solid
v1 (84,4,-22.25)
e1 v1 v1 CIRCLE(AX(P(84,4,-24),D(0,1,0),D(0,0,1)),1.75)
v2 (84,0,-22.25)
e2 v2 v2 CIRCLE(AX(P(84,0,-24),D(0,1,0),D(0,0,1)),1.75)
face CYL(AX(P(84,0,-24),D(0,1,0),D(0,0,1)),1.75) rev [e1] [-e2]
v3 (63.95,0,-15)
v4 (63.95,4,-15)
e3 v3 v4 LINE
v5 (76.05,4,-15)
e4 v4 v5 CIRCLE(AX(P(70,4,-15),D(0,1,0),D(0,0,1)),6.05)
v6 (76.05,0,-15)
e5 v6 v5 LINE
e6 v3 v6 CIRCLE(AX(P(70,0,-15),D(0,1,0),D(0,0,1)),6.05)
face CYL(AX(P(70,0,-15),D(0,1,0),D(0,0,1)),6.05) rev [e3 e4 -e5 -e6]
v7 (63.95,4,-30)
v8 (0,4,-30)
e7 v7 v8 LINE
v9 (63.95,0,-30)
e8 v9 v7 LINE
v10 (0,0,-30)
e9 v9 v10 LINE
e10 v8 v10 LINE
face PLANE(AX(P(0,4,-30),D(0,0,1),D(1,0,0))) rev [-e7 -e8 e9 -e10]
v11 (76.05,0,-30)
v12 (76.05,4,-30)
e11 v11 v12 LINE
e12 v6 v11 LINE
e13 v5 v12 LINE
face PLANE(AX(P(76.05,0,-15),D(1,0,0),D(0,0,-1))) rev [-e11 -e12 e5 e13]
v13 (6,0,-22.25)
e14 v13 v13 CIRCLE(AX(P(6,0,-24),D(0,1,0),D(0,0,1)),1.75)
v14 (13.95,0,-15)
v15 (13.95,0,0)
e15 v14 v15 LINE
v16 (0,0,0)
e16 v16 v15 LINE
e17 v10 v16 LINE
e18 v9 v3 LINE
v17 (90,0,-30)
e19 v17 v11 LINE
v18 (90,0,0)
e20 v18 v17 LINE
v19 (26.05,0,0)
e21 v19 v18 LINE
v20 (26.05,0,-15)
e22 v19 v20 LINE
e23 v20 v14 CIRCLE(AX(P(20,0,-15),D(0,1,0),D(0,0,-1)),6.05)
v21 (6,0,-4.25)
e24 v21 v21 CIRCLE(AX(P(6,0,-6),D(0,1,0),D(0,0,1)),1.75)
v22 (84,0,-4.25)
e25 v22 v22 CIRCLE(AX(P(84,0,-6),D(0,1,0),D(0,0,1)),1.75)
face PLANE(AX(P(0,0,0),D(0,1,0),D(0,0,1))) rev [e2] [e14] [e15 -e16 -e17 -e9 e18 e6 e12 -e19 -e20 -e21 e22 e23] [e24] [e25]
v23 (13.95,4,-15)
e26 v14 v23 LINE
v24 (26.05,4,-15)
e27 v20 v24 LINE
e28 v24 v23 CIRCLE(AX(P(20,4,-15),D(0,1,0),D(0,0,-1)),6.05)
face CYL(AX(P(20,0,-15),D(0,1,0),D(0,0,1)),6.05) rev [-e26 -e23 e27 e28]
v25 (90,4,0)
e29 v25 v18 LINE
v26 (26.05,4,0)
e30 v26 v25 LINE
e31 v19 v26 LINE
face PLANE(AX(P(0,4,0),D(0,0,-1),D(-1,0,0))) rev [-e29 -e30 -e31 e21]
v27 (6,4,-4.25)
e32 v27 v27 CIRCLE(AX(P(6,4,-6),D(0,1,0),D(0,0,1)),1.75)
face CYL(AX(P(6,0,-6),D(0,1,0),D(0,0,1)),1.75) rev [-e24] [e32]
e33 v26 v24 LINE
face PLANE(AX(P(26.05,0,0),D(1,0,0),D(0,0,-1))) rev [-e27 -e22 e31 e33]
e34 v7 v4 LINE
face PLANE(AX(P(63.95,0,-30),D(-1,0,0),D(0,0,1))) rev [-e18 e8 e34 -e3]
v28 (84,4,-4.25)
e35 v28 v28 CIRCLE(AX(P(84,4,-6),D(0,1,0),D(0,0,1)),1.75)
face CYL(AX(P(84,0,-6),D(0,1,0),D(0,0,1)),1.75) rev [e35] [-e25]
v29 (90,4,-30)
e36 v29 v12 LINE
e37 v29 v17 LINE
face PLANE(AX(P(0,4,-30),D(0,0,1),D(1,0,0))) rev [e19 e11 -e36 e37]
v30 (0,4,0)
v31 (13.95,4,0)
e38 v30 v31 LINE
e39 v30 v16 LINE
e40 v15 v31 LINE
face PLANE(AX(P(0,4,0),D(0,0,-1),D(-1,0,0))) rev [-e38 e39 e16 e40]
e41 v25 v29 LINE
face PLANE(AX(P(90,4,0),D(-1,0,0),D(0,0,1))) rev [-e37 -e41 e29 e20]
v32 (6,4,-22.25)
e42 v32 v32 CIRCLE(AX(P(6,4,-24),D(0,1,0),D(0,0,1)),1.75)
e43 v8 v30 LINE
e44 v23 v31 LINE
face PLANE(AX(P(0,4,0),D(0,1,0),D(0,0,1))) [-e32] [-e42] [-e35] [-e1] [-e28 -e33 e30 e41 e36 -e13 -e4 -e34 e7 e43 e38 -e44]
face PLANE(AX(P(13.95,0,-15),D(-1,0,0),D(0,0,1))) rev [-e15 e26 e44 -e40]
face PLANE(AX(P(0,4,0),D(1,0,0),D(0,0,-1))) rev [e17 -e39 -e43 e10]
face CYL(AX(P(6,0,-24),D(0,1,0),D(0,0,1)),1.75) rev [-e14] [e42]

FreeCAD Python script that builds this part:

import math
import FreeCAD as App
import Part
import Sketcher

V = App.Vector
Q = App.Units.Quantity

doc = App.newDocument("Part")
body = doc.addObject("PartDesign::Body", "Body")

# Sketch on XZ plane
sketch1 = body.newObject("Sketcher::SketchObject", "Sketch")
sketch1.AttachmentSupport = (doc.getObject("XZ_Plane"), [""])
sketch1.MapMode = "FlatFace"
sketch1.addGeometry(Part.LineSegment(V(0, -30, 0), V(0, 0, 0)), False)
sketch1.addGeometry(Part.LineSegment(V(0, 0, 0), V(90, 0, 0)), False)
sketch1.addGeometry(Part.LineSegment(V(90, 0, 0), V(90, -30, 0)), False)
sketch1.addGeometry(Part.LineSegment(V(90, -30, 0), V(0, -30, 0)), False)
sketch1.addConstraint(Sketcher.Constraint("Coincident", 0, 2, 1, 1))
sketch1.addConstraint(Sketcher.Constraint("Coincident", 1, 2, 2, 1))
sketch1.addConstraint(Sketcher.Constraint("Coincident", 2, 2, 3, 1))
sketch1.addConstraint(Sketcher.Constraint("Coincident", 3, 2, 0, 1))
sketch1.addConstraint(Sketcher.Constraint("Vertical", 0))
sketch1.addConstraint(Sketcher.Constraint("Horizontal", 1))
sketch1.addConstraint(Sketcher.Constraint("Vertical", 2))
sketch1.addConstraint(Sketcher.Constraint("Horizontal", 3))
sketch1.addConstraint(Sketcher.Constraint("Coincident", 0, 2, -1, 1))
sketch1.addConstraint(Sketcher.Constraint("DistanceX", 1, 1, 1, 2, Q("90 mm")))
sketch1.addConstraint(Sketcher.Constraint("DistanceY", 0, 1, 0, 2, Q("30 mm")))
pad1 = body.newObject("PartDesign::Pad", "Pad")
pad1.Profile = sketch1
pad1.Length = 4
pad1.Reversed = True

# Sketch on XZ plane
sketch2 = body.newObject("Sketcher::SketchObject", "Sketch001")
sketch2.AttachmentSupport = (doc.getObject("XZ_Plane"), [""])
sketch2.MapMode = "FlatFace"
sketch2.AttachmentOffset = App.Placement(V(0, 0, -4), App.Rotation())
sketch2.addGeometry(Part.Circle(V(6, -6, 0), V(0, 0, 1), 1.8), False)
sketch2.addGeometry(Part.Circle(V(6, -24, 0), V(0, 0, 1), 1.8), False)
sketch2.addGeometry(Part.Circle(V(84, -24, 0), V(0, 0, 1), 1.8), False)
sketch2.addGeometry(Part.Circle(V(84, -6, 0), V(0, 0, 1), 1.8), False)
sketch2.addGeometry(Part.LineSegment(V(13.9, 0, 0), V(26.1, 0, 0)), False)
sketch2.addGeometry(Part.LineSegment(V(26.1, 0, 0), V(26.1, -15, 0)), False)
sketch2.addGeometry(Part.ArcOfCircle(Part.Circle(V(20, -15, 0), V(0, 0, 1), 6), math.radians(180), math.radians(360)), False)
sketch2.addGeometry(Part.LineSegment(V(13.9, -15, 0), V(13.9, 0, 0)), False)
sketch2.addGeometry(Part.LineSegment(V(64, -30, 0), V(64, -15, 0)), False)
sketch2.addGeometry(Part.ArcOfCircle(Part.Circle(V(70, -15, 0), V(0, 0, 1), 6), math.radians(0), math.radians(180)), False)
sketch2.addGeometry(Part.LineSegment(V(76, -15, 0), V(76, -30, 0)), False)
sketch2.addGeometry(Part.LineSegment(V(76, -30, 0), V(64, -30, 0)), False)
sketch2.addConstraint(Sketcher.Constraint("Coincident", 4, 2, 5, 1))
sketch2.addConstraint(Sketcher.Constraint("Tangent", 5, 2, 6, 2))
sketch2.addConstraint(Sketcher.Constraint("Tangent", 6, 1, 7, 1))
sketch2.addConstraint(Sketcher.Constraint("Coincident", 7, 2, 4, 1))
sketch2.addConstraint(Sketcher.Constraint("Tangent", 8, 2, 9, 2))
sketch2.addConstraint(Sketcher.Constraint("Tangent", 9, 1, 10, 1))
sketch2.addConstraint(Sketcher.Constraint("Coincident", 10, 2, 11, 1))
sketch2.addConstraint(Sketcher.Constraint("Coincident", 11, 2, 8, 1))
sketch2.addConstraint(Sketcher.Constraint("Horizontal", 4))
sketch2.addConstraint(Sketcher.Constraint("Vertical", 5))
sketch2.addConstraint(Sketcher.Constraint("Vertical", 7))
sketch2.addConstraint(Sketcher.Constraint("Vertical", 8))
sketch2.addConstraint(Sketcher.Constraint("Vertical", 10))
sketch2.addConstraint(Sketcher.Constraint("Horizontal", 11))
sketch2.addConstraint(Sketcher.Constraint("Equal", 0, 1))
sketch2.addConstraint(Sketcher.Constraint("Equal", 1, 2))
sketch2.addConstraint(Sketcher.Constraint("Equal", 2, 3))
sketch2.addConstraint(Sketcher.Constraint("Equal", 6, 9))
sketch2.addConstraint(Sketcher.Constraint("PointOnObject", 4, 2, -1))
sketch2.addConstraint(Sketcher.Constraint("Horizontal", 1, 3, 2, 3))
sketch2.addConstraint(Sketcher.Constraint("Horizontal", 0, 3, 3, 3))
sketch2.addConstraint(Sketcher.Constraint("Horizontal", 6, 3, 9, 3))
sketch2.addConstraint(Sketcher.Constraint("Vertical", 0, 3, 1, 3))
sketch2.addConstraint(Sketcher.Constraint("Vertical", 2, 3, 3, 3))
sketch2.addConstraint(Sketcher.Constraint("Equal", 7, 8))
sketch2.addConstraint(Sketcher.Constraint("Diameter", 0, Q("3.5 mm")))
sketch2.addConstraint(Sketcher.Constraint("DistanceY", 5, 2, 5, 1, Q("15 mm")))
sketch2.addConstraint(Sketcher.Constraint("Radius", 6, Q("6.05 mm")))
sketch2.addConstraint(Sketcher.Constraint("DistanceX", -1, 1, 0, 3, Q("6 mm")))
sketch2.addConstraint(Sketcher.Constraint("DistanceY", 0, 3, -1, 1, Q("6 mm")))
sketch2.addConstraint(Sketcher.Constraint("DistanceY", 1, 3, -1, 1, Q("24 mm")))
sketch2.addConstraint(Sketcher.Constraint("DistanceX", -1, 1, 2, 3, Q("84 mm")))
sketch2.addConstraint(Sketcher.Constraint("DistanceX", -1, 1, 6, 3, Q("20 mm")))
sketch2.addConstraint(Sketcher.Constraint("DistanceX", -1, 1, 9, 3, Q("70 mm")))
pocket1 = body.newObject("PartDesign::Pocket", "Pocket")
pocket1.Profile = sketch2
pocket1.Type = "ThroughAll"
pocket1.Reversed = True

doc.recompute()
